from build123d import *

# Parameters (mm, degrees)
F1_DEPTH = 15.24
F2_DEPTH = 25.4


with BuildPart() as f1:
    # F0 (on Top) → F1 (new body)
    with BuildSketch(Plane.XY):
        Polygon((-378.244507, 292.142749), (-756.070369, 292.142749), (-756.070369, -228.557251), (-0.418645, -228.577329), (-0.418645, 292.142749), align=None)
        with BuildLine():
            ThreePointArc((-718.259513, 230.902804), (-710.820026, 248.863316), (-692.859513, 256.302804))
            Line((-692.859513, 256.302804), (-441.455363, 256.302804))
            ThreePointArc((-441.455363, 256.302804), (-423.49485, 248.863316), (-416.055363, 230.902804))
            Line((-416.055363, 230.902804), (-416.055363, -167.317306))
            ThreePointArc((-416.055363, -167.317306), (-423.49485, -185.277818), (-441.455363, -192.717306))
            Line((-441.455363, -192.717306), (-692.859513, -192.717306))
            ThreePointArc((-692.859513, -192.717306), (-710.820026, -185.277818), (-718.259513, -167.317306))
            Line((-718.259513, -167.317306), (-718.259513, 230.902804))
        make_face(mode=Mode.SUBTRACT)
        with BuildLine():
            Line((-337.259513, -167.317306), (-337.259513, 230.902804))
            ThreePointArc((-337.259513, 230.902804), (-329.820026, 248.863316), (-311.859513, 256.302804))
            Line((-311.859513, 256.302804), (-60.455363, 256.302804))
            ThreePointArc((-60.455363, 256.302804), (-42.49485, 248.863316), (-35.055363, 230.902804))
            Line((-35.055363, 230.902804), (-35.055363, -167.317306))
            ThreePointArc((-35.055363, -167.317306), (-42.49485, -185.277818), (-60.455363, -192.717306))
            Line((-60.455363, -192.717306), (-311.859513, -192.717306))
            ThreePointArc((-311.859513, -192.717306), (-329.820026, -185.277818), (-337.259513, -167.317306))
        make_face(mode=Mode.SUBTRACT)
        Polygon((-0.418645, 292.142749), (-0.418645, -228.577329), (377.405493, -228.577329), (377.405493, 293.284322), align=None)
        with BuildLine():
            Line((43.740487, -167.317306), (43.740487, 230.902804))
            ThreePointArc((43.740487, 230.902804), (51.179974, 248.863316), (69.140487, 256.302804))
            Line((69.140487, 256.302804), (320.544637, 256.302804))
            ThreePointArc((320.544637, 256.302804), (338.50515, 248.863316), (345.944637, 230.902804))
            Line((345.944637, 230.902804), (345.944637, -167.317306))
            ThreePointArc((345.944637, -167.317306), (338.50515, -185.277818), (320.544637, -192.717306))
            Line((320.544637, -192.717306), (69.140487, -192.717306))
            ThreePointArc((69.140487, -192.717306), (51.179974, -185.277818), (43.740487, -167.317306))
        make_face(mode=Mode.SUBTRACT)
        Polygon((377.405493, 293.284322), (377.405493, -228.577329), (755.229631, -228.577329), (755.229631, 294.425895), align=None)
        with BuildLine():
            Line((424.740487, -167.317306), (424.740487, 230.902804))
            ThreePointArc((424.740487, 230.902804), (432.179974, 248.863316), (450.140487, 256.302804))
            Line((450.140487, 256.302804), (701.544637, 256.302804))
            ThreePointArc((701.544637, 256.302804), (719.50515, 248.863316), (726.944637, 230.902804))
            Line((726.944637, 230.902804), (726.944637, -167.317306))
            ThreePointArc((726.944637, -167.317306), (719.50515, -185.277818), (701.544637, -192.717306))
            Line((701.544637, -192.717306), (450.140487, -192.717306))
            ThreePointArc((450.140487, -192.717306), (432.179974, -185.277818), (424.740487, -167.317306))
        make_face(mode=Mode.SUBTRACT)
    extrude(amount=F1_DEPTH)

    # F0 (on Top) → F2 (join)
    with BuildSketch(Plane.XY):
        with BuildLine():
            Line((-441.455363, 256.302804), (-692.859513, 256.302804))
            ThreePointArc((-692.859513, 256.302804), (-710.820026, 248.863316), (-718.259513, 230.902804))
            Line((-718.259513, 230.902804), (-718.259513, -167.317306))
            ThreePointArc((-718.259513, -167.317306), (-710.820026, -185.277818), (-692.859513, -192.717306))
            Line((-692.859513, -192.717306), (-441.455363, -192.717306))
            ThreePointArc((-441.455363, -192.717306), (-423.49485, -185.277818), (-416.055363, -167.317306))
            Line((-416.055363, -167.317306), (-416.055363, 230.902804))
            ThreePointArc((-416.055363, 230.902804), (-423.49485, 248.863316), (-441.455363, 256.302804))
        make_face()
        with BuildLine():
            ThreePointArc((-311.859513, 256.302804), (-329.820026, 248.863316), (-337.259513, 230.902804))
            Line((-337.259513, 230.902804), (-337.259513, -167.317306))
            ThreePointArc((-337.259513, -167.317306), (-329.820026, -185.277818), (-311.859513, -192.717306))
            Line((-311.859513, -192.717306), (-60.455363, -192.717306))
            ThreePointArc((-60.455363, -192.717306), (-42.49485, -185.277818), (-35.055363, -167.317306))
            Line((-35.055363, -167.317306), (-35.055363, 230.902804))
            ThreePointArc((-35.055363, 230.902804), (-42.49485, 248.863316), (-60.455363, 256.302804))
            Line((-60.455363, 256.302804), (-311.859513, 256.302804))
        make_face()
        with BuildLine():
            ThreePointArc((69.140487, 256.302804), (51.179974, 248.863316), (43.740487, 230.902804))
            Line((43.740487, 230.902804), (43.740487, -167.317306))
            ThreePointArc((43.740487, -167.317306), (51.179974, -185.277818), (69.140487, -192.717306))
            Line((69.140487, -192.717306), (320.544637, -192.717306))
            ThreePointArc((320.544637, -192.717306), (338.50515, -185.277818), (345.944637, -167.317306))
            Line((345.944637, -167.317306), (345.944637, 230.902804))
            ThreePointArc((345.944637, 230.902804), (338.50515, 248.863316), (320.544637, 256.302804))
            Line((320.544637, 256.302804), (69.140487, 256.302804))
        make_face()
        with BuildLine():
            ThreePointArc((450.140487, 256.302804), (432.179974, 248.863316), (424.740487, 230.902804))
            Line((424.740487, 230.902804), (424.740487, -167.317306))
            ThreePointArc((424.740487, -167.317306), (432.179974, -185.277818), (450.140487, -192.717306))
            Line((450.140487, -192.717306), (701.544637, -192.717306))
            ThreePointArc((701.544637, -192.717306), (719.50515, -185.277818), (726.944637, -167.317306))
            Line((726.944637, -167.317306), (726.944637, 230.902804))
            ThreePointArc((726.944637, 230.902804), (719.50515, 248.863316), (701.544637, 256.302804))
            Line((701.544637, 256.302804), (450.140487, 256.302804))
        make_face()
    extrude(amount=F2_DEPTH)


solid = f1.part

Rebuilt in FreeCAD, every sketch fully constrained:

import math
import FreeCAD as App
import Part
import Sketcher

V = App.Vector
Q = App.Units.Quantity


def add_polygon(sketch, points):
    """Adds a closed chain of lines whose ends are joined by coincident constraints."""
    first, n = sketch.GeometryCount, len(points)
    for a, b in zip(points, points[1:] + points[:1]):
        sketch.addGeometry(Part.LineSegment(App.Vector(*a, 0), App.Vector(*b, 0)), False)
    for i in range(n):
        sketch.addConstraint(Sketcher.Constraint("Coincident", first + i, 2, first + (i + 1) % n, 1))

doc = App.newDocument("Part")
body = doc.addObject("PartDesign::Body", "Body")

# Sketch on XY plane
sketch1 = doc.addObject("Sketcher::SketchObject", "Sketch")
body.addObject(sketch1)
sketch1.AttachmentSupport = (doc.XY_Plane, [""])
sketch1.MapMode = "FlatFace"
add_polygon(sketch1, [(-756, 292), (-756, -229), (0, -229), (755, -229), (755, 294), (0, 292)])  # lines 0-5
sketch1.addGeometry(Part.LineSegment(V(-718, -167, 0), V(-718, 231, 0)), False)  # 6
sketch1.addGeometry(Part.ArcOfCircle(Part.Circle(V(-693, 231, 0), V(0, 0, 1), 25), math.radians(90), math.radians(180)), False)  # 7
sketch1.addGeometry(Part.LineSegment(V(-693, 256, 0), V(-441, 256, 0)), False)  # 8
sketch1.addGeometry(Part.ArcOfCircle(Part.Circle(V(-441, 231, 0), V(0, 0, 1), 25), math.radians(0), math.radians(90)), False)  # 9
sketch1.addGeometry(Part.LineSegment(V(-416, 231, 0), V(-416, -167, 0)), False)  # 10
sketch1.addGeometry(Part.ArcOfCircle(Part.Circle(V(-441, -167, 0), V(0, 0, 1), 25), math.radians(-90), math.radians(0)), False)  # 11
sketch1.addGeometry(Part.LineSegment(V(-441, -193, 0), V(-693, -193, 0)), False)  # 12
sketch1.addGeometry(Part.ArcOfCircle(Part.Circle(V(-693, -167, 0), V(0, 0, 1), 25), math.radians(180), math.radians(270)), False)  # 13
sketch1.addGeometry(Part.ArcOfCircle(Part.Circle(V(-312, -167, 0), V(0, 0, 1), 25), math.radians(180), math.radians(270)), False)  # 14
sketch1.addGeometry(Part.LineSegment(V(-337, -167, 0), V(-337, 231, 0)), False)  # 15
sketch1.addGeometry(Part.ArcOfCircle(Part.Circle(V(-312, 231, 0), V(0, 0, 1), 25), math.radians(90), math.radians(180)), False)  # 16
sketch1.addGeometry(Part.LineSegment(V(-312, 256, 0), V(-60, 256, 0)), False)  # 17
sketch1.addGeometry(Part.ArcOfCircle(Part.Circle(V(-60, 231, 0), V(0, 0, 1), 25), math.radians(0), math.radians(90)), False)  # 18
sketch1.addGeometry(Part.LineSegment(V(-35, 231, 0), V(-35, -167, 0)), False)  # 19
sketch1.addGeometry(Part.ArcOfCircle(Part.Circle(V(-60, -167, 0), V(0, 0, 1), 25), math.radians(-90), math.radians(0)), False)  # 20
sketch1.addGeometry(Part.LineSegment(V(-60, -193, 0), V(-312, -193, 0)), False)  # 21
sketch1.addGeometry(Part.ArcOfCircle(Part.Circle(V(69, -167, 0), V(0, 0, 1), 25), math.radians(180), math.radians(270)), False)  # 22
sketch1.addGeometry(Part.LineSegment(V(44, -167, 0), V(44, 231, 0)), False)  # 23
sketch1.addGeometry(Part.ArcOfCircle(Part.Circle(V(69, 231, 0), V(0, 0, 1), 25), math.radians(90), math.radians(180)), False)  # 24
sketch1.addGeometry(Part.LineSegment(V(69, 256, 0), V(321, 256, 0)), False)  # 25
sketch1.addGeometry(Part.ArcOfCircle(Part.Circle(V(321, 231, 0), V(0, 0, 1), 25), math.radians(0), math.radians(90)), False)  # 26
sketch1.addGeometry(Part.LineSegment(V(346, 231, 0), V(346, -167, 0)), False)  # 27
sketch1.addGeometry(Part.ArcOfCircle(Part.Circle(V(321, -167, 0), V(0, 0, 1), 25), math.radians(-90), math.radians(0)), False)  # 28
sketch1.addGeometry(Part.LineSegment(V(321, -193, 0), V(69, -193, 0)), False)  # 29
sketch1.addGeometry(Part.ArcOfCircle(Part.Circle(V(450, -167, 0), V(0, 0, 1), 25), math.radians(180), math.radians(270)), False)  # 30
sketch1.addGeometry(Part.LineSegment(V(425, -167, 0), V(425, 231, 0)), False)  # 31
sketch1.addGeometry(Part.ArcOfCircle(Part.Circle(V(450, 231, 0), V(0, 0, 1), 25), math.radians(90), math.radians(180)), False)  # 32
sketch1.addGeometry(Part.LineSegment(V(450, 256, 0), V(702, 256, 0)), False)  # 33
sketch1.addGeometry(Part.ArcOfCircle(Part.Circle(V(702, 231, 0), V(0, 0, 1), 25), math.radians(0), math.radians(90)), False)  # 34
sketch1.addGeometry(Part.LineSegment(V(727, 231, 0), V(727, -167, 0)), False)  # 35
sketch1.addGeometry(Part.ArcOfCircle(Part.Circle(V(702, -167, 0), V(0, 0, 1), 25), math.radians(-90), math.radians(0)), False)  # 36
sketch1.addGeometry(Part.LineSegment(V(702, -193, 0), V(450, -193, 0)), False)  # 37
sketch1.addConstraint(Sketcher.Constraint("Tangent", 6, 2, 7, 2))
sketch1.addConstraint(Sketcher.Constraint("Tangent", 7, 1, 8, 1))
sketch1.addConstraint(Sketcher.Constraint("Tangent", 8, 2, 9, 2))
sketch1.addConstraint(Sketcher.Constraint("Tangent", 9, 1, 10, 1))
sketch1.addConstraint(Sketcher.Constraint("Tangent", 10, 2, 11, 2))
sketch1.addConstraint(Sketcher.Constraint("Tangent", 11, 1, 12, 1))
sketch1.addConstraint(Sketcher.Constraint("Tangent", 12, 2, 13, 2))
sketch1.addConstraint(Sketcher.Constraint("Tangent", 13, 1, 6, 1))
sketch1.addConstraint(Sketcher.Constraint("Tangent", 14, 1, 15, 1))
sketch1.addConstraint(Sketcher.Constraint("Tangent", 15, 2, 16, 2))
sketch1.addConstraint(Sketcher.Constraint("Tangent", 16, 1, 17, 1))
sketch1.addConstraint(Sketcher.Constraint("Tangent", 17, 2, 18, 2))
sketch1.addConstraint(Sketcher.Constraint("Tangent", 18, 1, 19, 1))
sketch1.addConstraint(Sketcher.Constraint("Tangent", 19, 2, 20, 2))
sketch1.addConstraint(Sketcher.Constraint("Tangent", 20, 1, 21, 1))
sketch1.addConstraint(Sketcher.Constraint("Tangent", 21, 2, 14, 2))
sketch1.addConstraint(Sketcher.Constraint("Tangent", 22, 1, 23, 1))
sketch1.addConstraint(Sketcher.Constraint("Tangent", 23, 2, 24, 2))
sketch1.addConstraint(Sketcher.Constraint("Tangent", 24, 1, 25, 1))
sketch1.addConstraint(Sketcher.Constraint("Tangent", 25, 2, 26, 2))
sketch1.addConstraint(Sketcher.Constraint("Tangent", 26, 1, 27, 1))
sketch1.addConstraint(Sketcher.Constraint("Tangent", 27, 2, 28, 2))
sketch1.addConstraint(Sketcher.Constraint("Tangent", 28, 1, 29, 1))
sketch1.addConstraint(Sketcher.Constraint("Tangent", 29, 2, 22, 2))
sketch1.addConstraint(Sketcher.Constraint("Tangent", 30, 1, 31, 1))
sketch1.addConstraint(Sketcher.Constraint("Tangent", 31, 2, 32, 2))
sketch1.addConstraint(Sketcher.Constraint("Tangent", 32, 1, 33, 1))
sketch1.addConstraint(Sketcher.Constraint("Tangent", 33, 2, 34, 2))
sketch1.addConstraint(Sketcher.Constraint("Tangent", 34, 1, 35, 1))
sketch1.addConstraint(Sketcher.Constraint("Tangent", 35, 2, 36, 2))
sketch1.addConstraint(Sketcher.Constraint("Tangent", 36, 1, 37, 1))
sketch1.addConstraint(Sketcher.Constraint("Tangent", 37, 2, 30, 2))
sketch1.addConstraint(Sketcher.Constraint("Vertical", 0))
sketch1.addConstraint(Sketcher.Constraint("Horizontal", 2))
sketch1.addConstraint(Sketcher.Constraint("Vertical", 3))
sketch1.addConstraint(Sketcher.Constraint("Horizontal", 5))
sketch1.addConstraint(Sketcher.Constraint("Vertical", 6))
sketch1.addConstraint(Sketcher.Constraint("Horizontal", 8))
sketch1.addConstraint(Sketcher.Constraint("Vertical", 10))
sketch1.addConstraint(Sketcher.Constraint("Horizontal", 12))
sketch1.addConstraint(Sketcher.Constraint("Vertical", 15))
sketch1.addConstraint(Sketcher.Constraint("Horizontal", 17))
sketch1.addConstraint(Sketcher.Constraint("Vertical", 19))
sketch1.addConstraint(Sketcher.Constraint("Horizontal", 21))
sketch1.addConstraint(Sketcher.Constraint("Vertical", 23))
sketch1.addConstraint(Sketcher.Constraint("Horizontal", 25))
sketch1.addConstraint(Sketcher.Constraint("Vertical", 27))
sketch1.addConstraint(Sketcher.Constraint("Horizontal", 29))
sketch1.addConstraint(Sketcher.Constraint("Vertical", 31))
sketch1.addConstraint(Sketcher.Constraint("Horizontal", 33))
sketch1.addConstraint(Sketcher.Constraint("Vertical", 35))
sketch1.addConstraint(Sketcher.Constraint("Horizontal", 37))
sketch1.addConstraint(Sketcher.Constraint("Equal", 7, 9))
sketch1.addConstraint(Sketcher.Constraint("Equal", 9, 11))
sketch1.addConstraint(Sketcher.Constraint("Equal", 11, 13))
sketch1.addConstraint(Sketcher.Constraint("Equal", 13, 14))
sketch1.addConstraint(Sketcher.Constraint("Equal", 14, 16))
sketch1.addConstraint(Sketcher.Constraint("Equal", 16, 18))
sketch1.addConstraint(Sketcher.Constraint("Equal", 18, 20))
sketch1.addConstraint(Sketcher.Constraint("Equal", 20, 22))
sketch1.addConstraint(Sketcher.Constraint("Equal", 22, 24))
sketch1.addConstraint(Sketcher.Constraint("Equal", 24, 26))
sketch1.addConstraint(Sketcher.Constraint("Equal", 26, 28))
sketch1.addConstraint(Sketcher.Constraint("Equal", 28, 30))
sketch1.addConstraint(Sketcher.Constraint("Equal", 30, 32))
sketch1.addConstraint(Sketcher.Constraint("Equal", 32, 34))
sketch1.addConstraint(Sketcher.Constraint("Equal", 34, 36))
sketch1.addConstraint(Sketcher.Constraint("Horizontal", 13, 3, 14, 3))
sketch1.addConstraint(Sketcher.Constraint("Horizontal", 9, 3, 16, 3))
sketch1.addConstraint(Sketcher.Constraint("Horizontal", 20, 3, 22, 3))
sketch1.addConstraint(Sketcher.Constraint("Horizontal", 18, 3, 24, 3))
sketch1.addConstraint(Sketcher.Constraint("Horizontal", 28, 3, 30, 3))
sketch1.addConstraint(Sketcher.Constraint("Horizontal", 26, 3, 32, 3))
sketch1.addConstraint(Sketcher.Constraint("Vertical", 1, 2, 4, 2))
sketch1.addConstraint(Sketcher.Constraint("Equal", 12, 17))
sketch1.addConstraint(Sketcher.Constraint("Equal", 21, 25))
sketch1.addConstraint(Sketcher.Constraint("Equal", 29, 33))
sketch1.addConstraint(Sketcher.Constraint("Equal", 1, 4))
sketch1.addConstraint(Sketcher.Constraint("Radius", 7, Q("1 in")))
sketch1.addConstraint(Sketcher.Constraint("DistanceY", 0, 2, 0, 1, Q("20.5 in")))
sketch1.addConstraint(Sketcher.Constraint("DistanceX", 13, 3, 14, 3, Q("15 in")))
sketch1.addConstraint(Sketcher.Constraint("DistanceX", 14, 3, 22, 3, Q("15 in")))
sketch1.addConstraint(Sketcher.Constraint("DistanceX", 22, 3, 30, 3, Q("15 in")))
sketch1.addConstraint(Sketcher.Constraint("DistanceX", 8, 1, 8, 2, 251.40415))
sketch1.addConstraint(Sketcher.Constraint("DistanceY", 6, 1, 6, 2, 398.22011))
sketch1.addConstraint(Sketcher.Constraint("DistanceY", 36, 3, 3, 2, 461.743202))
sketch1.addConstraint(Sketcher.Constraint("DistanceX", 2, 1, 2, 2, 755.648276))
sketch1.addConstraint(Sketcher.Constraint("DistanceY", 3, 1, 3, 2, 523.003224))
sketch1.addConstraint(Sketcher.Constraint("DistanceX", 0, 2, -1, 1, 756.070369))
sketch1.addConstraint(Sketcher.Constraint("DistanceY", 0, 2, -1, 1, 228.557251))
sketch1.addConstraint(Sketcher.Constraint("DistanceY", 1, 2, -1, 1, 228.577329))
sketch1.addConstraint(Sketcher.Constraint("DistanceX", 1, 2, 22, 3, 69.559131))
pad1 = doc.addObject("PartDesign::Pad", "Pad")
body.addObject(pad1)
pad1.Profile = sketch1
pad1.Length = Q("0.6 in")

# Sketch on XY plane
sketch2 = doc.addObject("Sketcher::SketchObject", "Sketch001")
body.addObject(sketch2)
sketch2.AttachmentSupport = (doc.XY_Plane, [""])
sketch2.MapMode = "FlatFace"
sketch2.addGeometry(Part.LineSegment(V(-441, 256, 0), V(-693, 256, 0)), False)
sketch2.addGeometry(Part.ArcOfCircle(Part.Circle(V(-693, 231, 0), V(0, 0, 1), 25), math.radians(90), math.radians(180)), False)
sketch2.addGeometry(Part.LineSegment(V(-718, 231, 0), V(-718, -167, 0)), False)
sketch2.addGeometry(Part.ArcOfCircle(Part.Circle(V(-693, -167, 0), V(0, 0, 1), 25), math.radians(180), math.radians(270)), False)
sketch2.addGeometry(Part.LineSegment(V(-693, -193, 0), V(-441, -193, 0)), False)
sketch2.addGeometry(Part.ArcOfCircle(Part.Circle(V(-441, -167, 0), V(0, 0, 1), 25), math.radians(-90), math.radians(0)), False)
sketch2.addGeometry(Part.LineSegment(V(-416, -167, 0), V(-416, 231, 0)), False)
sketch2.addGeometry(Part.ArcOfCircle(Part.Circle(V(-441, 231, 0), V(0, 0, 1), 25), math.radians(0), math.radians(90)), False)
sketch2.addGeometry(Part.ArcOfCircle(Part.Circle(V(-312, 231, 0), V(0, 0, 1), 25), math.radians(90), math.radians(180)), False)
sketch2.addGeometry(Part.LineSegment(V(-337, 231, 0), V(-337, -167, 0)), False)
sketch2.addGeometry(Part.ArcOfCircle(Part.Circle(V(-312, -167, 0), V(0, 0, 1), 25), math.radians(180), math.radians(270)), False)
sketch2.addGeometry(Part.LineSegment(V(-312, -193, 0), V(-60, -193, 0)), False)
sketch2.addGeometry(Part.ArcOfCircle(Part.Circle(V(-60, -167, 0), V(0, 0, 1), 25), math.radians(-90), math.radians(0)), False)
sketch2.addGeometry(Part.LineSegment(V(-35, -167, 0), V(-35, 231, 0)), False)
sketch2.addGeometry(Part.ArcOfCircle(Part.Circle(V(-60, 231, 0), V(0, 0, 1), 25), math.radians(0), math.radians(90)), False)
sketch2.addGeometry(Part.LineSegment(V(-60, 256, 0), V(-312, 256, 0)), False)
sketch2.addGeometry(Part.ArcOfCircle(Part.Circle(V(69, 231, 0), V(0, 0, 1), 25), math.radians(90), math.radians(180)), False)
sketch2.addGeometry(Part.LineSegment(V(44, 231, 0), V(44, -167, 0)), False)
sketch2.addGeometry(Part.ArcOfCircle(Part.Circle(V(69, -167, 0), V(0, 0, 1), 25), math.radians(180), math.radians(270)), False)
sketch2.addGeometry(Part.LineSegment(V(69, -193, 0), V(321, -193, 0)), False)
sketch2.addGeometry(Part.ArcOfCircle(Part.Circle(V(321, -167, 0), V(0, 0, 1), 25), math.radians(-90), math.radians(0)), False)
sketch2.addGeometry(Part.LineSegment(V(346, -167, 0), V(346, 231, 0)), False)
sketch2.addGeometry(Part.ArcOfCircle(Part.Circle(V(321, 231, 0), V(0, 0, 1), 25), math.radians(0), math.radians(90)), False)
sketch2.addGeometry(Part.LineSegment(V(321, 256, 0), V(69, 256, 0)), False)
sketch2.addGeometry(Part.ArcOfCircle(Part.Circle(V(450, 231, 0), V(0, 0, 1), 25), math.radians(90), math.radians(180)), False)
sketch2.addGeometry(Part.LineSegment(V(425, 231, 0), V(425, -167, 0)), False)
sketch2.addGeometry(Part.ArcOfCircle(Part.Circle(V(450, -167, 0), V(0, 0, 1), 25), math.radians(180), math.radians(270)), False)
sketch2.addGeometry(Part.LineSegment(V(450, -193, 0), V(702, -193, 0)), False)
sketch2.addGeometry(Part.ArcOfCircle(Part.Circle(V(702, -167, 0), V(0, 0, 1), 25), math.radians(-90), math.radians(0)), False)
sketch2.addGeometry(Part.LineSegment(V(727, -167, 0), V(727, 231, 0)), False)
sketch2.addGeometry(Part.ArcOfCircle(Part.Circle(V(702, 231, 0), V(0, 0, 1), 25), math.radians(0), math.radians(90)), False)
sketch2.addGeometry(Part.LineSegment(V(702, 256, 0), V(450, 256, 0)), False)
sketch2.addConstraint(Sketcher.Constraint("Tangent", 0, 2, 1, 1))
sketch2.addConstraint(Sketcher.Constraint("Tangent", 1, 2, 2, 1))
sketch2.addConstraint(Sketcher.Constraint("Tangent", 2, 2, 3, 1))
sketch2.addConstraint(Sketcher.Constraint("Tangent", 3, 2, 4, 1))
sketch2.addConstraint(Sketcher.Constraint("Tangent", 4, 2, 5, 1))
sketch2.addConstraint(Sketcher.Constraint("Tangent", 5, 2, 6, 1))
sketch2.addConstraint(Sketcher.Constraint("Tangent", 6, 2, 7, 1))
sketch2.addConstraint(Sketcher.Constraint("Tangent", 7, 2, 0, 1))
sketch2.addConstraint(Sketcher.Constraint("Tangent", 8, 2, 9, 1))
sketch2.addConstraint(Sketcher.Constraint("Tangent", 9, 2, 10, 1))
sketch2.addConstraint(Sketcher.Constraint("Tangent", 10, 2, 11, 1))
sketch2.addConstraint(Sketcher.Constraint("Tangent", 11, 2, 12, 1))
sketch2.addConstraint(Sketcher.Constraint("Tangent", 12, 2, 13, 1))
sketch2.addConstraint(Sketcher.Constraint("Tangent", 13, 2, 14, 1))
sketch2.addConstraint(Sketcher.Constraint("Tangent", 14, 2, 15, 1))
sketch2.addConstraint(Sketcher.Constraint("Tangent", 15, 2, 8, 1))
sketch2.addConstraint(Sketcher.Constraint("Tangent", 16, 2, 17, 1))
sketch2.addConstraint(Sketcher.Constraint("Tangent", 17, 2, 18, 1))
sketch2.addConstraint(Sketcher.Constraint("Tangent", 18, 2, 19, 1))
sketch2.addConstraint(Sketcher.Constraint("Tangent", 19, 2, 20, 1))
sketch2.addConstraint(Sketcher.Constraint("Tangent", 20, 2, 21, 1))
sketch2.addConstraint(Sketcher.Constraint("Tangent", 21, 2, 22, 1))
sketch2.addConstraint(Sketcher.Constraint("Tangent", 22, 2, 23, 1))
sketch2.addConstraint(Sketcher.Constraint("Tangent", 23, 2, 16, 1))
sketch2.addConstraint(Sketcher.Constraint("Tangent", 24, 2, 25, 1))
sketch2.addConstraint(Sketcher.Constraint("Tangent", 25, 2, 26, 1))
sketch2.addConstraint(Sketcher.Constraint("Tangent", 26, 2, 27, 1))
sketch2.addConstraint(Sketcher.Constraint("Tangent", 27, 2, 28, 1))
sketch2.addConstraint(Sketcher.Constraint("Tangent", 28, 2, 29, 1))
sketch2.addConstraint(Sketcher.Constraint("Tangent", 29, 2, 30, 1))
sketch2.addConstraint(Sketcher.Constraint("Tangent", 30, 2, 31, 1))
sketch2.addConstraint(Sketcher.Constraint("Tangent", 31, 2, 24, 1))
sketch2.addConstraint(Sketcher.Constraint("Horizontal", 0))
sketch2.addConstraint(Sketcher.Constraint("Vertical", 2))
sketch2.addConstraint(Sketcher.Constraint("Horizontal", 4))
sketch2.addConstraint(Sketcher.Constraint("Vertical", 6))
sketch2.addConstraint(Sketcher.Constraint("Vertical", 9))
sketch2.addConstraint(Sketcher.Constraint("Horizontal", 11))
sketch2.addConstraint(Sketcher.Constraint("Vertical", 13))
sketch2.addConstraint(Sketcher.Constraint("Horizontal", 15))
sketch2.addConstraint(Sketcher.Constraint("Vertical", 17))
sketch2.addConstraint(Sketcher.Constraint("Horizontal", 19))
sketch2.addConstraint(Sketcher.Constraint("Vertical", 21))
sketch2.addConstraint(Sketcher.Constraint("Horizontal", 23))
sketch2.addConstraint(Sketcher.Constraint("Vertical", 25))
sketch2.addConstraint(Sketcher.Constraint("Horizontal", 27))
sketch2.addConstraint(Sketcher.Constraint("Vertical", 29))
sketch2.addConstraint(Sketcher.Constraint("Horizontal", 31))
sketch2.addConstraint(Sketcher.Constraint("Equal", 1, 3))
sketch2.addConstraint(Sketcher.Constraint("Equal", 3, 5))
sketch2.addConstraint(Sketcher.Constraint("Equal", 5, 7))
sketch2.addConstraint(Sketcher.Constraint("Equal", 7, 8))
sketch2.addConstraint(Sketcher.Constraint("Equal", 8, 10))
sketch2.addConstraint(Sketcher.Constraint("Equal", 10, 12))
sketch2.addConstraint(Sketcher.Constraint("Equal", 12, 14))
sketch2.addConstraint(Sketcher.Constraint("Equal", 14, 16))
sketch2.addConstraint(Sketcher.Constraint("Equal", 16, 18))
sketch2.addConstraint(Sketcher.Constraint("Equal", 18, 20))
sketch2.addConstraint(Sketcher.Constraint("Equal", 20, 22))
sketch2.addConstraint(Sketcher.Constraint("Equal", 22, 24))
sketch2.addConstraint(Sketcher.Constraint("Equal", 24, 26))
sketch2.addConstraint(Sketcher.Constraint("Equal", 26, 28))
sketch2.addConstraint(Sketcher.Constraint("Equal", 28, 30))
sketch2.addConstraint(Sketcher.Constraint("Horizontal", 7, 3, 8, 3))
sketch2.addConstraint(Sketcher.Constraint("Horizontal", 5, 3, 10, 3))
sketch2.addConstraint(Sketcher.Constraint("Horizontal", 14, 3, 16, 3))
sketch2.addConstraint(Sketcher.Constraint("Horizontal", 12, 3, 18, 3))
sketch2.addConstraint(Sketcher.Constraint("Horizontal", 22, 3, 24, 3))
sketch2.addConstraint(Sketcher.Constraint("Horizontal", 20, 3, 26, 3))
sketch2.addConstraint(Sketcher.Constraint("Equal", 4, 11))
sketch2.addConstraint(Sketcher.Constraint("Equal", 15, 19))
sketch2.addConstraint(Sketcher.Constraint("Equal", 23, 27))
sketch2.addConstraint(Sketcher.Constraint("Radius", 1, Q("1 in")))
sketch2.addConstraint(Sketcher.Constraint("DistanceX", 1, 3, 8, 3, Q("15 in")))
sketch2.addConstraint(Sketcher.Constraint("DistanceX", 8, 3, 16, 3, Q("15 in")))
sketch2.addConstraint(Sketcher.Constraint("DistanceX", 16, 3, 24, 3, Q("15 in")))
sketch2.addConstraint(Sketcher.Constraint("DistanceX", 0, 2, 0, 1, 251.40415))
sketch2.addConstraint(Sketcher.Constraint("DistanceY", 2, 2, 2, 1, 398.22011))
sketch2.addConstraint(Sketcher.Constraint("DistanceX", 1, 3, -1, 1, 692.859514))
sketch2.addConstraint(Sketcher.Constraint("DistanceY", -1, 1, 1, 3, 230.902805))
pad2 = doc.addObject("PartDesign::Pad", "Pad001")
body.addObject(pad2)
pad2.Profile = sketch2
pad2.Length = Q("1 in")

doc.recompute()
